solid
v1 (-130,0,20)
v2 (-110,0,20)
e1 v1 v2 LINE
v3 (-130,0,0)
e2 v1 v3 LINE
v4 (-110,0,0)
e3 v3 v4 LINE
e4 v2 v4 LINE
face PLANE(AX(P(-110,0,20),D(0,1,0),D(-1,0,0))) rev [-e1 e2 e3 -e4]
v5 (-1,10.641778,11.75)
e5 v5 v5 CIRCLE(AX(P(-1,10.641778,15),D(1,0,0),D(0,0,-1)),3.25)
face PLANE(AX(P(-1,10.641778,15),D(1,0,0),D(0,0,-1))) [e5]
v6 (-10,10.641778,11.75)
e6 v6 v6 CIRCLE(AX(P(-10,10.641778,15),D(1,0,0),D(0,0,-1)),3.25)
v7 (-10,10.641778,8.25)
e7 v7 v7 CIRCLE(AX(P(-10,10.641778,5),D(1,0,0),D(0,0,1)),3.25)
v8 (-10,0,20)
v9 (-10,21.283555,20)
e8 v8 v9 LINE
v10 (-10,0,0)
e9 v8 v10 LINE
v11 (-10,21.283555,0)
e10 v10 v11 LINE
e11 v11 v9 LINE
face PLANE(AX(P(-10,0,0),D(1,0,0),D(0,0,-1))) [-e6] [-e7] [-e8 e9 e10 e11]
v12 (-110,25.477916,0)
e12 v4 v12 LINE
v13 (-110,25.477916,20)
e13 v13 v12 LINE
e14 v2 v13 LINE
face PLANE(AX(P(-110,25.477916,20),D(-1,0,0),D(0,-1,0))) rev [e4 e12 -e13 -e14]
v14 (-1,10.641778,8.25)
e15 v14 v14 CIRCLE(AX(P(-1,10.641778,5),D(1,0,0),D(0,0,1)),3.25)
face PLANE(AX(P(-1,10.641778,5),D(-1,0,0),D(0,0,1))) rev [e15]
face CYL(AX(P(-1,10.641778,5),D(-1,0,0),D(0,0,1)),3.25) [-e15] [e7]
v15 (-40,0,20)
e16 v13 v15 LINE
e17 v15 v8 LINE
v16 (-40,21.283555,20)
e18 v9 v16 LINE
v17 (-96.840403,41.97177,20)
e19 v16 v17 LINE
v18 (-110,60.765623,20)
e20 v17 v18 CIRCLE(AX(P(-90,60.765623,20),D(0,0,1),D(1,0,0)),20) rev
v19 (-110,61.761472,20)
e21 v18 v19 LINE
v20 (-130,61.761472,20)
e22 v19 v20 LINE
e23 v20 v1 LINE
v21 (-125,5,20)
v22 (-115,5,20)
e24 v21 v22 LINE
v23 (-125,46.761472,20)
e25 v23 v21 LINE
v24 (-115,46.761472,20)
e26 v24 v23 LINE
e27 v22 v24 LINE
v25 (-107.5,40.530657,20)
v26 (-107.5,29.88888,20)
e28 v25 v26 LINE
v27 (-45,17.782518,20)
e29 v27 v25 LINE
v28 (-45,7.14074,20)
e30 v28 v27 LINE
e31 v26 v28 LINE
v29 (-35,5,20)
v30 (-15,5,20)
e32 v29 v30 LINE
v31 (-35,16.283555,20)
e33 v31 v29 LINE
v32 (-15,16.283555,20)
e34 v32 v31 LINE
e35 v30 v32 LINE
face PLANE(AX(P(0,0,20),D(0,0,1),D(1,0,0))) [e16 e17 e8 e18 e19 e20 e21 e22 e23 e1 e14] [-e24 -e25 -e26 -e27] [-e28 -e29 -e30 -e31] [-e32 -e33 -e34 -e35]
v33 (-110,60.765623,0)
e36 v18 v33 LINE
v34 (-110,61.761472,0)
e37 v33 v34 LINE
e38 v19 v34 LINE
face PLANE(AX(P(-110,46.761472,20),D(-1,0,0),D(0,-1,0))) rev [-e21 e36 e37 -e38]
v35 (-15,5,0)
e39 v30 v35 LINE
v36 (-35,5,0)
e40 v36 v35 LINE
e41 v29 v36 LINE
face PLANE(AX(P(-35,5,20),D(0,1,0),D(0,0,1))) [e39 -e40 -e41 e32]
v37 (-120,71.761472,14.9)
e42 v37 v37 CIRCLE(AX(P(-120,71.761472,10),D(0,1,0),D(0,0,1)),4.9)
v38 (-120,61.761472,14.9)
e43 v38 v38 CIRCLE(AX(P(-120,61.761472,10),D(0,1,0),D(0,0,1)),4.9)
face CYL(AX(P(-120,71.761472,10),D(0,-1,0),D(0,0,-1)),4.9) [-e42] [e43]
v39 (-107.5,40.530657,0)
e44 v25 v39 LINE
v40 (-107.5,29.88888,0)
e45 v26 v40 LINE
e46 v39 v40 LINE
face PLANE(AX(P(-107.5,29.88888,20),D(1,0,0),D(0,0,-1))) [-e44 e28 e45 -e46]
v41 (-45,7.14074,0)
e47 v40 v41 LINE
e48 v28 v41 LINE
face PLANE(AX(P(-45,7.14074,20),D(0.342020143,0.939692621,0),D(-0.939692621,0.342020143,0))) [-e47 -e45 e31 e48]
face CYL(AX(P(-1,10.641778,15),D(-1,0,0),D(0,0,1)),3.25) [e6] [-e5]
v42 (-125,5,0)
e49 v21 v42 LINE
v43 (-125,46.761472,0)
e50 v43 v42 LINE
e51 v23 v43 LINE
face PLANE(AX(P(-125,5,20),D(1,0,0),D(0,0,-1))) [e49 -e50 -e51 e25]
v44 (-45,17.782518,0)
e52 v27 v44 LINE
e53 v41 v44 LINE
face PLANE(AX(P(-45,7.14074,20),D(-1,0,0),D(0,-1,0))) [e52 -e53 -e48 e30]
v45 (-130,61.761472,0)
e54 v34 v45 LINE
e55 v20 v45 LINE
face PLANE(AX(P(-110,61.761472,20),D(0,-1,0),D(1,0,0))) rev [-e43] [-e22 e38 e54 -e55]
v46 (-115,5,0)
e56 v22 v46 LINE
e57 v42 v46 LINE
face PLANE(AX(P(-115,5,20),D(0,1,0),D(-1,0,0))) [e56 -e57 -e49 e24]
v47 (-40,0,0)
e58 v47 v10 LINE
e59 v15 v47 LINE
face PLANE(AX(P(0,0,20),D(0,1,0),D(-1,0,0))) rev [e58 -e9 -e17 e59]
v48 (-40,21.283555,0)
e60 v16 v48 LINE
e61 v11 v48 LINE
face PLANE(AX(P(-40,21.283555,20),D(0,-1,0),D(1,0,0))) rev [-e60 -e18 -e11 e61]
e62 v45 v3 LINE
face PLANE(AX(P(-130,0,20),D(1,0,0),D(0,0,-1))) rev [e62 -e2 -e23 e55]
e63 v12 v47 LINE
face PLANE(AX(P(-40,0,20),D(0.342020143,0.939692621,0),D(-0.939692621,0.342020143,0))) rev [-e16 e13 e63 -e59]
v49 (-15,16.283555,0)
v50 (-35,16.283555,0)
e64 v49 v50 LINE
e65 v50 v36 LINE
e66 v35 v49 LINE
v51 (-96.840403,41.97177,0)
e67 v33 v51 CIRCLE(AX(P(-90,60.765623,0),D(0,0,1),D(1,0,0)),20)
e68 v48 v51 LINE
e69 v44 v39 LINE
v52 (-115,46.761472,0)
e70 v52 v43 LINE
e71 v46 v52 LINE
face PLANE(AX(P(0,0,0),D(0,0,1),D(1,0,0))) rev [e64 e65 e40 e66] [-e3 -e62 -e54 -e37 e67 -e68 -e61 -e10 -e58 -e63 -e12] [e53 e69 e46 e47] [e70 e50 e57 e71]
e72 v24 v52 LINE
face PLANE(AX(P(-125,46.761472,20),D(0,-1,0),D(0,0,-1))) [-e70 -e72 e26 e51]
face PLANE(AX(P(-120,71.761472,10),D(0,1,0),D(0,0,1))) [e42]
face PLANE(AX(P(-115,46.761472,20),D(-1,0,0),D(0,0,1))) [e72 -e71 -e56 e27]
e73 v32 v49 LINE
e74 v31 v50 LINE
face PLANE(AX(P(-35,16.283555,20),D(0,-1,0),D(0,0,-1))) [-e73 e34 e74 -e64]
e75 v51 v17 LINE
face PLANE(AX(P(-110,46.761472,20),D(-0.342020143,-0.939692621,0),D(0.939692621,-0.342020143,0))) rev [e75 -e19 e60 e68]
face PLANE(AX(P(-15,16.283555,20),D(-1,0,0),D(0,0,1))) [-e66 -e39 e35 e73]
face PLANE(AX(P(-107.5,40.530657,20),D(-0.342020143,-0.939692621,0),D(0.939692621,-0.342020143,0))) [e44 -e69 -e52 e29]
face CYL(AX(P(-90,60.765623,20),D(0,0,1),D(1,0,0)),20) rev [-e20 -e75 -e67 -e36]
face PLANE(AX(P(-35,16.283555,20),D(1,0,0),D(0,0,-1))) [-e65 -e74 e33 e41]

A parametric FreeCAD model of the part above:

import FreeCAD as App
import Part
import Sketcher

V = App.Vector
Q = App.Units.Quantity


def edges_at(feature, points):
    """Names of the edges that pass closest to the given points."""
    edges = feature.Shape.Edges
    near = lambda p: min(range(len(edges)), key=lambda i: edges[i].distToShape(Part.Vertex(*p))[0])
    return sorted({f"Edge{near(p) + 1}" for p in points})


def add_polygon(sketch, points):
    """Adds a closed chain of lines whose ends are joined by coincident constraints."""
    first, n = sketch.GeometryCount, len(points)
    for a, b in zip(points, points[1:] + points[:1]):
        sketch.addGeometry(Part.LineSegment(App.Vector(*a, 0), App.Vector(*b, 0)), False)
    for i in range(n):
        sketch.addConstraint(Sketcher.Constraint("Coincident", first + i, 2, first + (i + 1) % n, 1))

doc = App.newDocument("Part")
body = doc.addObject("PartDesign::Body", "Body")

sketch1 = doc.addObject("Sketcher::SketchObject", "Sketch")
body.addObject(sketch1)
sketch1.AttachmentSupport = (doc.XY_Plane, [""])
sketch1.MapMode = "FlatFace"
add_polygon(sketch1, [(0, 0), (0, 21.283555), (-40, 21.283555), (-110, 46.761472), (-110, 61.761472), (-130, 61.761472), (-130, 0), (-110, 0), (-110, 25.477916), (-40, 0)])
add_polygon(sketch1, [(-107.5, 29.88888), (-107.5, 40.530657), (-45, 17.782518), (-45, 7.14074)])
add_polygon(sketch1, [(-15, 5), (-35, 5), (-35, 16.283555), (-15, 16.283555)])
add_polygon(sketch1, [(-115, 5), (-125, 5), (-125, 46.761472), (-115, 46.761472)])
sketch1.addConstraint([
    Sketcher.Constraint("Vertical", 0),
    Sketcher.Constraint("Horizontal", 1),
    Sketcher.Constraint("Vertical", 3),
    Sketcher.Constraint("Horizontal", 4),
    Sketcher.Constraint("Vertical", 5),
    Sketcher.Constraint("Horizontal", 6),
    Sketcher.Constraint("Vertical", 7),
    Sketcher.Constraint("Horizontal", 9),
    Sketcher.Constraint("Vertical", 10),
    Sketcher.Constraint("Vertical", 12),
    Sketcher.Constraint("Horizontal", 14),
    Sketcher.Constraint("Vertical", 15),
    Sketcher.Constraint("Horizontal", 16),
    Sketcher.Constraint("Vertical", 17),
    Sketcher.Constraint("Horizontal", 18),
    Sketcher.Constraint("Vertical", 19),
    Sketcher.Constraint("Horizontal", 20),
    Sketcher.Constraint("Vertical", 21),
    Sketcher.Constraint("Coincident", 9, 2, -1, 1),
    Sketcher.Constraint("PointOnObject", 5, 2, -1),
    Sketcher.Constraint("Parallel", 2, 8),
    Sketcher.Constraint("Parallel", 8, 11),
    Sketcher.Constraint("Parallel", 11, 13),
    Sketcher.Constraint("Horizontal", 17, 2, 18, 2),
    Sketcher.Constraint("Horizontal", 2, 2, 19, 2),
    Sketcher.Constraint("Vertical", 3, 2, 6, 2),
    Sketcher.Constraint("Vertical", 1, 2, 8, 2),
    Sketcher.Constraint("Equal", 6, 14),
    Sketcher.Constraint("DistanceX", 1, 2, 1, 1, 40.0),
    Sketcher.Constraint("DistanceX", 4, 2, 4, 1, 20.0),
    Sketcher.Constraint("DistanceX", 18, 2, 18, 1, 10.0),
    Sketcher.Constraint("DistanceY", 3, 1, 3, 2, 15.0),
    Sketcher.Constraint("Angle", 2, Q("160 deg")),
    Sketcher.Constraint("DistanceX", 2, 2, -1, 1, 110.0),
    Sketcher.Constraint("DistanceX", 11, 2, -1, 1, 45.0),
    Sketcher.Constraint("DistanceX", 14, 2, -1, 1, 35.0),
    Sketcher.Constraint("DistanceY", -1, 1, 14, 2, 5.0),
    Sketcher.Constraint("DistanceX", 18, 2, -1, 1, 125.0),
    Sketcher.Constraint("DistanceY", 15, 2, 1, 2, 5.0),
    Sketcher.Constraint("DistanceX", 10, 2, -1, 1, 107.5),
    Sketcher.Constraint("DistanceY", 5, 2, 5, 1, 61.761472),
    Sketcher.Constraint("DistanceY", 11, 2, 7, 2, 7.695399),
    Sketcher.Constraint("DistanceY", 10, 1, 10, 2, 10.641778),
])
pad1 = doc.addObject("PartDesign::Pad", "Pad")
body.addObject(pad1)
pad1.Profile = sketch1
pad1.Length = 20
doc.recompute()

fillet = doc.addObject("PartDesign::Fillet", "Fillet")
body.addObject(fillet)
fillet.Base = (pad1, edges_at(pad1, [(-110, 46.761, 10)]))
fillet.Radius = 20

sketch2 = doc.addObject("Sketcher::SketchObject", "Sketch001")
body.addObject(sketch2)
sketch2.AttachmentSupport = (doc.XZ_Plane, [""])
sketch2.MapMode = "FlatFace"
sketch2.AttachmentOffset = App.Placement(V(0, 0, -61.761472), App.Rotation())
sketch2.addGeometry(Part.Circle(V(-120, 10, 0), V(0, 0, 1), 4.9), False)
sketch2.addConstraint([
    Sketcher.Constraint("Diameter", 0, 9.8),
    Sketcher.Constraint("DistanceX", 0, 3, -1, 1, 120.0),
    Sketcher.Constraint("DistanceY", -1, 1, 0, 3, 10.0),
])
pad2 = doc.addObject("PartDesign::Pad", "Pad001")
body.addObject(pad2)
pad2.Profile = sketch2
pad2.Length = 10
pad2.Reversed = True

sketch3 = doc.addObject("Sketcher::SketchObject", "Sketch002")
body.addObject(sketch3)
sketch3.AttachmentSupport = (doc.YZ_Plane, [""])
sketch3.MapMode = "FlatFace"
add_polygon(sketch3, [(29.86117, 47.106991), (-5.221804, 47.106991), (-5.221804, -15.733939), (29.86117, -15.733939)])
sketch3.addConstraint([
    Sketcher.Constraint("Horizontal", 0),
    Sketcher.Constraint("Vertical", 1),
    Sketcher.Constraint("Horizontal", 2),
    Sketcher.Constraint("Vertical", 3),
    Sketcher.Constraint("DistanceY", 1, 2, 1, 1, 62.84093),
    Sketcher.Constraint("DistanceX", 0, 2, 0, 1, 35.082973),
    Sketcher.Constraint("DistanceY", -1, 1, 0, 2, 47.106991),
    Sketcher.Constraint("DistanceX", -1, 1, 2, 2, 29.86117),
])
pocket1 = doc.addObject("PartDesign::Pocket", "Pocket")
body.addObject(pocket1)
pocket1.Profile = sketch3
pocket1.Length = 10

sketch4 = doc.addObject("Sketcher::SketchObject", "Sketch003")
body.addObject(sketch4)
sketch4.AttachmentSupport = (doc.YZ_Plane, [""])
sketch4.MapMode = "FlatFace"
sketch4.AttachmentOffset = App.Placement(V(0, 0, -10), App.Rotation())
sketch4.addGeometry([
    Part.Circle(V(10.641778, 15, 0), V(0, 0, 1), 3.25),
    Part.Circle(V(10.641778, 5, 0), V(0, 0, 1), 3.25),
], False)
sketch4.addConstraint([
    Sketcher.Constraint("Equal", 0, 1),
    Sketcher.Constraint("Vertical", 0, 3, 1, 3),
    Sketcher.Constraint("Diameter", 0, 6.5),
    Sketcher.Constraint("DistanceY", -1, 1, 0, 3, 15.0),
    Sketcher.Constraint("DistanceY", -1, 1, 1, 3, 5.0),
    Sketcher.Constraint("DistanceX", -1, 1, 0, 3, 10.641778),
])
pad3 = doc.addObject("PartDesign::Pad", "Pad002")
body.addObject(pad3)
pad3.Profile = sketch4
pad3.Length = 9

doc.recompute()
